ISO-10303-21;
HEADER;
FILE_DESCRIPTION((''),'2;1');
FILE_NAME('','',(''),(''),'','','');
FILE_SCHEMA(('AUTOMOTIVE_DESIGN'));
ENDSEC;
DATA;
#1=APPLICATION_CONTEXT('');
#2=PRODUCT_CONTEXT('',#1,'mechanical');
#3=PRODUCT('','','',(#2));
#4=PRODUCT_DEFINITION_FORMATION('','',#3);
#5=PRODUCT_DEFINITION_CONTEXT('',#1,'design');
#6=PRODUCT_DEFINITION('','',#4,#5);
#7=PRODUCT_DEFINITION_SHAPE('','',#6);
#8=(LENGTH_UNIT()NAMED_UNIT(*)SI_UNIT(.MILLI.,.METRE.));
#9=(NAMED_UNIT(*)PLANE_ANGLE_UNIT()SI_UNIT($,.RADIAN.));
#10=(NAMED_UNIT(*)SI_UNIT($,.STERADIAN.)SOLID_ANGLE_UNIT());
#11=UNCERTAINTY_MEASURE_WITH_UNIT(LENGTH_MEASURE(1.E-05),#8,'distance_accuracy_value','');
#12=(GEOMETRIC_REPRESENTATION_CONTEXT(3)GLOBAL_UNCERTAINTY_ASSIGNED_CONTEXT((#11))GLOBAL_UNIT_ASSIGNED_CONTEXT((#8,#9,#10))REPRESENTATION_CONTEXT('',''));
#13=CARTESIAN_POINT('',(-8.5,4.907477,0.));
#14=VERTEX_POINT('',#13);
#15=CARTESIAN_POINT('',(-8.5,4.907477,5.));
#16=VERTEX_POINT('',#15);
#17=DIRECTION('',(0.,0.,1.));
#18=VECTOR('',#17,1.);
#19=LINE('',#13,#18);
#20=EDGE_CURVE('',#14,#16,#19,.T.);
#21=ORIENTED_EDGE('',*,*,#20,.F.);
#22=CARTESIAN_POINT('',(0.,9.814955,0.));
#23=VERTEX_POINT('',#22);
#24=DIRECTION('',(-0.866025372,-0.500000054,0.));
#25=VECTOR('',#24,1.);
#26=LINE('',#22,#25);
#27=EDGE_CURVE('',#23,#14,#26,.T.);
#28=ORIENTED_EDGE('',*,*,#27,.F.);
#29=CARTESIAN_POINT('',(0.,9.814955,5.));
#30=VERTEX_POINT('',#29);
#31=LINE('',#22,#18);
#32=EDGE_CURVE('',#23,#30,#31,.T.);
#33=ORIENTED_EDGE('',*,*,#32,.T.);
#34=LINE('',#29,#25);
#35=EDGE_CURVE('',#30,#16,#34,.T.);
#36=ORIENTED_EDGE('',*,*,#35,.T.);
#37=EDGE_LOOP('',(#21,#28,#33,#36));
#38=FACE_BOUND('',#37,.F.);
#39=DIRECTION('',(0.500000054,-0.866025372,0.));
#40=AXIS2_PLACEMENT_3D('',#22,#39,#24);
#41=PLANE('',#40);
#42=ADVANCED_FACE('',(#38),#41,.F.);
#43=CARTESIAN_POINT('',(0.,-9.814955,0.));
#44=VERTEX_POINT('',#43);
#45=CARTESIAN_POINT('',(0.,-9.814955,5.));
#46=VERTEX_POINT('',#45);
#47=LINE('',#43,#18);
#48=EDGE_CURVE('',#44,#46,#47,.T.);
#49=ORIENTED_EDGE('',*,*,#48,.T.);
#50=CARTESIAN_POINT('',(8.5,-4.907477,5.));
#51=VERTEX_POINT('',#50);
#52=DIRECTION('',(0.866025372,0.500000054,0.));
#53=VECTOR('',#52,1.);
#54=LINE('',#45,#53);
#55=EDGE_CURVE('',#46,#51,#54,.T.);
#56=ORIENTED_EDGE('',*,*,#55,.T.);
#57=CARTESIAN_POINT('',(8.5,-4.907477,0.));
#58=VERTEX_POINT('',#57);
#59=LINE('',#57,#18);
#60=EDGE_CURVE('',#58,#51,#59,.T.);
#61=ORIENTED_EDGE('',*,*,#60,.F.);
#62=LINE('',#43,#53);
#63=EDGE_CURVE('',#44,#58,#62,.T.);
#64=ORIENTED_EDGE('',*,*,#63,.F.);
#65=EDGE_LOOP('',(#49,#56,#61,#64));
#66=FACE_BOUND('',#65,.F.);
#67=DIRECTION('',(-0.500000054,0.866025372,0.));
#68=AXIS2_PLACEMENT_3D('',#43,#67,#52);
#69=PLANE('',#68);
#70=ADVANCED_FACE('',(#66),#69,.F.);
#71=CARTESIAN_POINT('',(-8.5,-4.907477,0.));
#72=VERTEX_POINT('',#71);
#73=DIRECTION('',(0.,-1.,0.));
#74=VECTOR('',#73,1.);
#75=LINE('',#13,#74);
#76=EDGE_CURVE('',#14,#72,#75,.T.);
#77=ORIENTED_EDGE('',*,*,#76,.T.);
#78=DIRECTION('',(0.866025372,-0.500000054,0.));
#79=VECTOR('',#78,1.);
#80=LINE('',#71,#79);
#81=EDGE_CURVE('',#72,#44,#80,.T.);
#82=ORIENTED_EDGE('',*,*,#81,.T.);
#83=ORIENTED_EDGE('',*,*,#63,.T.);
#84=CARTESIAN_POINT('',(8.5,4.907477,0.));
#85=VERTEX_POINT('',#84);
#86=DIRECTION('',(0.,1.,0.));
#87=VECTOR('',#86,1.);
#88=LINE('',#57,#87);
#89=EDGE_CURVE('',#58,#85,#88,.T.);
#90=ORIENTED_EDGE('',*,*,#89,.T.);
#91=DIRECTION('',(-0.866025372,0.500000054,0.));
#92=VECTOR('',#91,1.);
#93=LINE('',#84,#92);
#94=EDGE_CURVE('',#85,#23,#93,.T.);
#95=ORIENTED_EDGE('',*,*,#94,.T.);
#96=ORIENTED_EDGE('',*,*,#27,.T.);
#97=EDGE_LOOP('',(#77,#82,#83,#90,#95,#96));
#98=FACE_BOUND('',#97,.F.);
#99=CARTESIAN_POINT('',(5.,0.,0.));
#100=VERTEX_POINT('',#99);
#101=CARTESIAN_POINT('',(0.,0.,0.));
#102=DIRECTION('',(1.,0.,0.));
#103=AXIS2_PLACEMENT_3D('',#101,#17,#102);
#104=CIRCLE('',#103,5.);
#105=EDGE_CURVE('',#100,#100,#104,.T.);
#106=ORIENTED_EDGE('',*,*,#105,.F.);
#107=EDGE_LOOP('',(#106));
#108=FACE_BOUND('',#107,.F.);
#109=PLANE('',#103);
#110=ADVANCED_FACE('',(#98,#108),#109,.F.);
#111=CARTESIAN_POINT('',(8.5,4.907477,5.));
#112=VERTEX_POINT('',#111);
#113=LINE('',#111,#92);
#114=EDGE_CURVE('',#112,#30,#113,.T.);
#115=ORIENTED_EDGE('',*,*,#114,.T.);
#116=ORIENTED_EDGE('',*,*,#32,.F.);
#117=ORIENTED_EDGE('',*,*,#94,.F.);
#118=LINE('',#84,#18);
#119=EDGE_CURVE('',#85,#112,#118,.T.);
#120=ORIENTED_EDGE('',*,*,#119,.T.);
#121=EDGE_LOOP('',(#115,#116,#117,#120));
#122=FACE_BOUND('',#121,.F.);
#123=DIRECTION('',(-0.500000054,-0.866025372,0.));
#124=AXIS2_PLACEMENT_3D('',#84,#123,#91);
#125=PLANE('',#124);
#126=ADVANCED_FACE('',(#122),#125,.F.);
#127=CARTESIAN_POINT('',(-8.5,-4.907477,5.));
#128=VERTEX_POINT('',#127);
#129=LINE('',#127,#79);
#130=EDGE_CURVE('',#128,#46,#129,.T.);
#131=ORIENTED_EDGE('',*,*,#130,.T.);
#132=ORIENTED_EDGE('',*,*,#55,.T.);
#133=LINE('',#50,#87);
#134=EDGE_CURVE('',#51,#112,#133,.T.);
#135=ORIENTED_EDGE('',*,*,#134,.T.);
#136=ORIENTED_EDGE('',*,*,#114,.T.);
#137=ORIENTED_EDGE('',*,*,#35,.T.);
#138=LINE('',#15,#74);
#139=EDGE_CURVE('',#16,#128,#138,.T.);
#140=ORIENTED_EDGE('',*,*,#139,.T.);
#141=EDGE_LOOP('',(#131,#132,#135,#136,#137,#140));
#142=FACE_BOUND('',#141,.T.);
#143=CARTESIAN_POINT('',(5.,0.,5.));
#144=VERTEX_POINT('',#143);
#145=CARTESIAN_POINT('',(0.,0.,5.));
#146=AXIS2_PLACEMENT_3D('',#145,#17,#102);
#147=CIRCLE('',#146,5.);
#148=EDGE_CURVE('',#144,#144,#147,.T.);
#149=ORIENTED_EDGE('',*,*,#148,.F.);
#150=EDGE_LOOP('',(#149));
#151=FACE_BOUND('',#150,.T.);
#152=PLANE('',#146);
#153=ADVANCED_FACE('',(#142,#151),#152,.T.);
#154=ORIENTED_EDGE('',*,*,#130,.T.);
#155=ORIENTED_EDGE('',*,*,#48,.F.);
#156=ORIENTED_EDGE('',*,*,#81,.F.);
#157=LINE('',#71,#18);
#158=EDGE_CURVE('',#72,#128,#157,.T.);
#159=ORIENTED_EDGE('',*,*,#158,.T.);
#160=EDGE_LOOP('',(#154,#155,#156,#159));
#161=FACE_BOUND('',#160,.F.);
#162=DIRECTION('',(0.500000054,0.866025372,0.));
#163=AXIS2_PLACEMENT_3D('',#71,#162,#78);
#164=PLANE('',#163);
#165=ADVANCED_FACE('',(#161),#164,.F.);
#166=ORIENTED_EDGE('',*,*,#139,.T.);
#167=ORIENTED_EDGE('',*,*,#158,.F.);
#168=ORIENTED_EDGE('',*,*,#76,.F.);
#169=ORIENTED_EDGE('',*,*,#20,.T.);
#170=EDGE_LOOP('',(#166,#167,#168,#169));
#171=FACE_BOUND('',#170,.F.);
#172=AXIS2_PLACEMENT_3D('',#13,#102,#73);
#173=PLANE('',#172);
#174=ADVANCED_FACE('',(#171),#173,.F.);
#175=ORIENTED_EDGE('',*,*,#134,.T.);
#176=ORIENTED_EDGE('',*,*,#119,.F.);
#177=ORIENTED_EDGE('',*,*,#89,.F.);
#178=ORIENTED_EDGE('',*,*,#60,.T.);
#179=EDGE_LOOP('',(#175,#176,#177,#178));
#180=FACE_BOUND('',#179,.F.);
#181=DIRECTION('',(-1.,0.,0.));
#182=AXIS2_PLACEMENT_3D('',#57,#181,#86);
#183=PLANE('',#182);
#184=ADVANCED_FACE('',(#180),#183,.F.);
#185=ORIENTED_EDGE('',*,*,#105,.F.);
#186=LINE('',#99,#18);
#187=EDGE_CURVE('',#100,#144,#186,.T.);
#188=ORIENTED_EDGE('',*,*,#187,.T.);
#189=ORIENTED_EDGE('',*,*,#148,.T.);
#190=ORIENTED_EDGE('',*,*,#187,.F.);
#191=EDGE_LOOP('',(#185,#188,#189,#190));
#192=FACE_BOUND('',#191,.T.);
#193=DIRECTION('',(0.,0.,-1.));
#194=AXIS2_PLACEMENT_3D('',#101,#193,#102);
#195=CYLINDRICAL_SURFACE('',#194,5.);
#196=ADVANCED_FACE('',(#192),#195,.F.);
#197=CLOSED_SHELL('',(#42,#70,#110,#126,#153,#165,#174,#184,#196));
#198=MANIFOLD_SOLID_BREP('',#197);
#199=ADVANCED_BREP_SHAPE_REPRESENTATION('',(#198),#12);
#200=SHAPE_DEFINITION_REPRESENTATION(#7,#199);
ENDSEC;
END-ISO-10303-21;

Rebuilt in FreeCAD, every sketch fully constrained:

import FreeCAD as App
import Part
import Sketcher
from FreeCAD import Vector
Q = App.Units.Quantity

doc = App.newDocument("Part")
body = doc.addObject("PartDesign::Body", "Body")

sketch1 = body.newObject("Sketcher::SketchObject", "Sketch")
sketch1.AttachmentSupport = (doc.getObject("XY_Plane"), [""])
sketch1.MapMode = "FlatFace"
sketch1.addGeometry([
    Part.LineSegment(Vector(0, -9.814955, 0), Vector(8.5, -4.907477, 0)),
    Part.LineSegment(Vector(8.5, -4.907477, 0), Vector(8.5, 4.907477, 0)),
    Part.LineSegment(Vector(8.5, 4.907477, 0), Vector(0, 9.814955, 0)),
    Part.LineSegment(Vector(0, 9.814955, 0), Vector(-8.5, 4.907477, 0)),
    Part.LineSegment(Vector(-8.5, 4.907477, 0), Vector(-8.5, -4.907477, 0)),
    Part.LineSegment(Vector(-8.5, -4.907477, 0), Vector(0, -9.814955, 0)),
    Part.Circle(Vector(0, 0, 0), Vector(0, 0, 1), 5),
], False)
sketch1.addConstraint([
    Sketcher.Constraint("Coincident", 0, 2, 1, 1),
    Sketcher.Constraint("Coincident", 1, 2, 2, 1),
    Sketcher.Constraint("Coincident", 2, 2, 3, 1),
    Sketcher.Constraint("Coincident", 3, 2, 4, 1),
    Sketcher.Constraint("Coincident", 4, 2, 5, 1),
    Sketcher.Constraint("Coincident", 5, 2, 0, 1),
    Sketcher.Constraint("Vertical", 1),
    Sketcher.Constraint("Vertical", 4),
    Sketcher.Constraint("Coincident", 6, 3, -1, 1),
    Sketcher.Constraint("Symmetric", 0, 2, 3, 2, -1, 1),
    Sketcher.Constraint("Symmetric", 2, 2, 5, 2, -1, 1),
    Sketcher.Constraint("PointOnObject", 2, 2, -2),
    Sketcher.Constraint("Parallel", 2, 5),
    Sketcher.Constraint("Horizontal", 1, 2, 3, 2),
    Sketcher.Constraint("Diameter", 6, Q("10 mm")),
    Sketcher.Constraint("Angle", 0, Q("30.000004 deg")),
    Sketcher.Constraint("DistanceX", 3, 2, 1, 2, Q("17 mm")),
    Sketcher.Constraint("DistanceY", 1, 1, 1, 2, Q("9.814954 mm")),
])
pad1 = body.newObject("PartDesign::Pad", "Pad")
pad1.Profile = sketch1
pad1.Length = 5

doc.recompute()
